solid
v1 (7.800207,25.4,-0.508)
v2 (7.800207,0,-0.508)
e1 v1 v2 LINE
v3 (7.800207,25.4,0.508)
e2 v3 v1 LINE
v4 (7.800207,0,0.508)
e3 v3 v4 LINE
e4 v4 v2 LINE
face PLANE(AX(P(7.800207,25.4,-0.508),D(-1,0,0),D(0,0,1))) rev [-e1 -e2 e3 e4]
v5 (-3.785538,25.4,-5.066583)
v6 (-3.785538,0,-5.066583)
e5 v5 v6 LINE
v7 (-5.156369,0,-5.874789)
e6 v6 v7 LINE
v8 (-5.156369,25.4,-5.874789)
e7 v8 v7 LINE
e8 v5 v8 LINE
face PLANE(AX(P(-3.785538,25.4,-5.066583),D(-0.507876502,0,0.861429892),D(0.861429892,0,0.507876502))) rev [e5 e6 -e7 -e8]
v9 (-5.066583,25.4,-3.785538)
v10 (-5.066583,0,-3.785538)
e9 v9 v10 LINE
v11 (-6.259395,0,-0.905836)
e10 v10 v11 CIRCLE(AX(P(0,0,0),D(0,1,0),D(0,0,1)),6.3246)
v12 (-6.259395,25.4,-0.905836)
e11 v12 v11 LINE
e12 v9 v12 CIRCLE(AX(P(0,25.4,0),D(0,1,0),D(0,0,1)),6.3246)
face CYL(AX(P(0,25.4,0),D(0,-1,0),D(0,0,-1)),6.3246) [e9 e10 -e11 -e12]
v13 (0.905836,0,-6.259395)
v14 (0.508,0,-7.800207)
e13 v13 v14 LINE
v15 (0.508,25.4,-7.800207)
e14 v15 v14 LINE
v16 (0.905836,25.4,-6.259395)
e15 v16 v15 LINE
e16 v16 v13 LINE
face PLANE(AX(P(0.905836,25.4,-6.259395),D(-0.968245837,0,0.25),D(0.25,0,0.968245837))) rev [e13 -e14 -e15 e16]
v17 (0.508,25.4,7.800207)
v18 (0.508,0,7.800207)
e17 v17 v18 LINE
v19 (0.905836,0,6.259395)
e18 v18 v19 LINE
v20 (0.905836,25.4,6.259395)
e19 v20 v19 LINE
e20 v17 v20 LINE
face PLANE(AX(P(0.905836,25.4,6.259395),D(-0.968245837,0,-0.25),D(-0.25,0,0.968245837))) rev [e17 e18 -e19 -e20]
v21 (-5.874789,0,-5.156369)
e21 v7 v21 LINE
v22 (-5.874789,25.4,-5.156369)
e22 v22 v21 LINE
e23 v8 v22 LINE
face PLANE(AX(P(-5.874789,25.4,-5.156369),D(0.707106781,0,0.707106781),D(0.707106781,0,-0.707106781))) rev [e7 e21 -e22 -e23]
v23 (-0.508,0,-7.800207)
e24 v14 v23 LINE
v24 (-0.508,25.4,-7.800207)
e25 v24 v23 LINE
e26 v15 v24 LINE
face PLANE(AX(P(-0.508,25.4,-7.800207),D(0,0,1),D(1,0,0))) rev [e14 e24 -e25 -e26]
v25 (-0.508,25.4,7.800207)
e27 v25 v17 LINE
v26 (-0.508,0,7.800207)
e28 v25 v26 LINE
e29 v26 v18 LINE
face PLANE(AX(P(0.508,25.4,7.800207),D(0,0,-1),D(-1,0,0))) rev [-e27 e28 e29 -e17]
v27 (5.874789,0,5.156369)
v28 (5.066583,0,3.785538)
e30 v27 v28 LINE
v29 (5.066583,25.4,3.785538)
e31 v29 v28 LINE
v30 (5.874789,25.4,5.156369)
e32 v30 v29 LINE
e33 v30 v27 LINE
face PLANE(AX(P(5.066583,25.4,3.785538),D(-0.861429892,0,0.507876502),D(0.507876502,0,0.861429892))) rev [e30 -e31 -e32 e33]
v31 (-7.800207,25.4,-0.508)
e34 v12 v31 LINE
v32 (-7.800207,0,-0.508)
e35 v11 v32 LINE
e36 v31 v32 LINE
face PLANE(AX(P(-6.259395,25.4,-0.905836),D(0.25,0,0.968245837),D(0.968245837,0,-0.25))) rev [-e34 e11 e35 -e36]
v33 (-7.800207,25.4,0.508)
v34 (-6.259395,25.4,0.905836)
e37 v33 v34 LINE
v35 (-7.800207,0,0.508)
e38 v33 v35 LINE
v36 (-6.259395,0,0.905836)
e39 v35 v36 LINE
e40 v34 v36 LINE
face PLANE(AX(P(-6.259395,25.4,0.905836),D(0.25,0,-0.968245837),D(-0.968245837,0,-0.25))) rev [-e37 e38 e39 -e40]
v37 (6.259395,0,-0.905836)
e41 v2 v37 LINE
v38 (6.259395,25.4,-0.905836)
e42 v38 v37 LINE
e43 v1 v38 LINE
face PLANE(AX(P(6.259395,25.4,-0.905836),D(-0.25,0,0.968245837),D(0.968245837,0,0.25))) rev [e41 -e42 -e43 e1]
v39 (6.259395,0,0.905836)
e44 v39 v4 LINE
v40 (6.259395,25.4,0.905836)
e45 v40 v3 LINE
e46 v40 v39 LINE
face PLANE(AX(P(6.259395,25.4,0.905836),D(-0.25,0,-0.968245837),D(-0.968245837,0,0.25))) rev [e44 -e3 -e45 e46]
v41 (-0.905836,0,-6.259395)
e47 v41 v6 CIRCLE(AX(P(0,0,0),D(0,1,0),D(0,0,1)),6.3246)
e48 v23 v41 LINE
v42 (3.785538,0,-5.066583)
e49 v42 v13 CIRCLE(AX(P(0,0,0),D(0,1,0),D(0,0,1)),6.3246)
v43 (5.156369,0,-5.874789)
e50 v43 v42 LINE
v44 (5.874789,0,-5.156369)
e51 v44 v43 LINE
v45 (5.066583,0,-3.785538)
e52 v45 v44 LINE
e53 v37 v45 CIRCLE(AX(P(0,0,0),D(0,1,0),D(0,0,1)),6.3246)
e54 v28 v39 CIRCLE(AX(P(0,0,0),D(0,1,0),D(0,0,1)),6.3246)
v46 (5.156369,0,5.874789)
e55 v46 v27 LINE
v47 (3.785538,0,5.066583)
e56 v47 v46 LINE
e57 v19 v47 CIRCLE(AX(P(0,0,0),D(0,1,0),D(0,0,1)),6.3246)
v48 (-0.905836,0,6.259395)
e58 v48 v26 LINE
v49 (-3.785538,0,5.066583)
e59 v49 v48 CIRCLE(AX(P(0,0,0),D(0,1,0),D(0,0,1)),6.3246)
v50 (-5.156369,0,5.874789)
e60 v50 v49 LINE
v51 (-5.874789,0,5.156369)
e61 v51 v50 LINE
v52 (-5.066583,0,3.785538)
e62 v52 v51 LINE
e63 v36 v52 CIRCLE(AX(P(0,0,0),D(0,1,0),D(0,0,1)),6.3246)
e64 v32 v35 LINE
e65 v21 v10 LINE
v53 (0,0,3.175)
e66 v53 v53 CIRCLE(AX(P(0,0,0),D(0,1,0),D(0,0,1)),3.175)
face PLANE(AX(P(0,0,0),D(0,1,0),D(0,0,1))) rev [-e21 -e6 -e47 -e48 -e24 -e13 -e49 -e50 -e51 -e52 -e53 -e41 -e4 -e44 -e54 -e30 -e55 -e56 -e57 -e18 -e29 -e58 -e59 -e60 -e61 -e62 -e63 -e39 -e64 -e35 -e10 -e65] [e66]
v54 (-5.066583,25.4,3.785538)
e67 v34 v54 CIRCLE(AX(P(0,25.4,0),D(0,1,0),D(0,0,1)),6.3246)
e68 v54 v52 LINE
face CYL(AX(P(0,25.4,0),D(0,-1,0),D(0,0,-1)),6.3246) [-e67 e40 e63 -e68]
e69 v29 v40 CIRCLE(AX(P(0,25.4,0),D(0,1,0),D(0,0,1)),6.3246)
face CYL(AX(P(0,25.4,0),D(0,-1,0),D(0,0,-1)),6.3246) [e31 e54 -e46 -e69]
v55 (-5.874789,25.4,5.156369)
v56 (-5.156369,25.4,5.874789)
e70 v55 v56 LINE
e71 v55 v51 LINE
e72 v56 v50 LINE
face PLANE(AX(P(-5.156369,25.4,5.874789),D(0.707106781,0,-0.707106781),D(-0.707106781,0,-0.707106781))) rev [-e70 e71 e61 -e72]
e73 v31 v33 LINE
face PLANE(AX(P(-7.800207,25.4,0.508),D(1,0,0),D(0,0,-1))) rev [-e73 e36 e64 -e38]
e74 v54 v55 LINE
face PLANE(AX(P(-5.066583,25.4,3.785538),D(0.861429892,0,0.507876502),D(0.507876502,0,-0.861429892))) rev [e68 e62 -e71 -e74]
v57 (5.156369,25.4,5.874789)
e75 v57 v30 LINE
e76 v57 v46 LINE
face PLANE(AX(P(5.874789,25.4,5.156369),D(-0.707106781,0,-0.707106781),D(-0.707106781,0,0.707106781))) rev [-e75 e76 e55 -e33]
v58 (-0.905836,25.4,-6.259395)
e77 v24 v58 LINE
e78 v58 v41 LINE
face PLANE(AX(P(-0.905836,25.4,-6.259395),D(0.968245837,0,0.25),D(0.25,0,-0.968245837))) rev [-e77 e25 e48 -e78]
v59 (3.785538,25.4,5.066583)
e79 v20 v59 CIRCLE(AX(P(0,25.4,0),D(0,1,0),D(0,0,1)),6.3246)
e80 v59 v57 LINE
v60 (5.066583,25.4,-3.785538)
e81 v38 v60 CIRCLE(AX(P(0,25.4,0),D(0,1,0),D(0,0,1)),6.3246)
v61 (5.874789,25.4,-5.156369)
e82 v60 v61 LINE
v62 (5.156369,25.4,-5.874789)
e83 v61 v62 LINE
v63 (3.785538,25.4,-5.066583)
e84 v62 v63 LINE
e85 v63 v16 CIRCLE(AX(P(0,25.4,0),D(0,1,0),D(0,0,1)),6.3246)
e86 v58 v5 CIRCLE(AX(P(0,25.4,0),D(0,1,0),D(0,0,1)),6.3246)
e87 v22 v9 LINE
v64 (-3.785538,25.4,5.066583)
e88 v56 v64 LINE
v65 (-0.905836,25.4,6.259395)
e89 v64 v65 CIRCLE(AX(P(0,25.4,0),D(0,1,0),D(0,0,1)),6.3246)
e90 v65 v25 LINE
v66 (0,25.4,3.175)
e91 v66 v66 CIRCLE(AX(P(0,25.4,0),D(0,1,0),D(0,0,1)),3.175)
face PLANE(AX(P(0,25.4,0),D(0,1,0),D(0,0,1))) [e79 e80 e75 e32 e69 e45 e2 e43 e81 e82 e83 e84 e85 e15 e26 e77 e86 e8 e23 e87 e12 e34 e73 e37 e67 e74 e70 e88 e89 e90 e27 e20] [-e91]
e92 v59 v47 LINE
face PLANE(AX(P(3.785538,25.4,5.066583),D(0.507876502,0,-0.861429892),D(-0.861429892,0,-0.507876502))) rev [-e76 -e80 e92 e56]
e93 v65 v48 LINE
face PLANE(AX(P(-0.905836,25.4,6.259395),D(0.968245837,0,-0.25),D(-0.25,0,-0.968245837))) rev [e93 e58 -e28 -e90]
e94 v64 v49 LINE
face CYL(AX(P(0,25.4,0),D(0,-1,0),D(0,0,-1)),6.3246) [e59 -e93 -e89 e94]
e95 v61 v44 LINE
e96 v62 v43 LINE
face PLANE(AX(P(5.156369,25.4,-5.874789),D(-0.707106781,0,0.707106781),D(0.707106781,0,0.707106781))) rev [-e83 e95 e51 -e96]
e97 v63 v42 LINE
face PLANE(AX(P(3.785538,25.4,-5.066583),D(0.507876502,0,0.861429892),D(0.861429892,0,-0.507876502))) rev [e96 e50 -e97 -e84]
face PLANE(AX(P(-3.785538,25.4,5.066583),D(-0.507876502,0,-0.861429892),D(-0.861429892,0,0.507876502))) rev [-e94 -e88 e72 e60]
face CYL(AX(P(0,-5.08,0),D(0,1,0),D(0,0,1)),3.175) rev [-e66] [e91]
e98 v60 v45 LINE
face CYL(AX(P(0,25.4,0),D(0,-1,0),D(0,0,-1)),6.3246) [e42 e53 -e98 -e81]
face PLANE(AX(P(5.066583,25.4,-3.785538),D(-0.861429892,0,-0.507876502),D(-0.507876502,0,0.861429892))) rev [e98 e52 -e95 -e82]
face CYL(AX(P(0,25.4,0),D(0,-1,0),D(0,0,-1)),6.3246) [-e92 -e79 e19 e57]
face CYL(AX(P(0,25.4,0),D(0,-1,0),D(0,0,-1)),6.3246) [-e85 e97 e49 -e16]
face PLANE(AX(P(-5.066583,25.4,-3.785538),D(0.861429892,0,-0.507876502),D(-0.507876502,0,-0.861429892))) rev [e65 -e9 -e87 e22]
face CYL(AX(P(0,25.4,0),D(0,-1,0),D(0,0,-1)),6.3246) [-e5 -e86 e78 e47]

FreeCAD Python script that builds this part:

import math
import FreeCAD as App
import Part
import Sketcher
Q = App.Units.Quantity

doc = App.newDocument("Part")
params = doc.addObject("Spreadsheet::Sheet", "Params")
for row, (alias, value) in enumerate([
    ("sketch1_radius", "0.249 in"),
    ("sketch1_width", "0.04 in"),
    ("sketch1_length", "0.04 in"),
    ("pad1_length", "1 in"),
    ("sketch2_diameter", "0.25 in"),
    ("pocket1_length", "1.2 in"),
], start=1):
    params.set(f"A{row}", alias)
    params.set(f"B{row}", "=" + value)
    params.setAlias(f"B{row}", alias)

body = doc.addObject("PartDesign::Body", "Body")

# Sketch on XZ plane
sketch1 = body.newObject("Sketcher::SketchObject", "Sketch")
sketch1.AttachmentSupport = (doc.getObject("XZ_Plane"), [""])
sketch1.MapMode = "FlatFace"
sketch1.addGeometry([
    Part.LineSegment(App.Vector(-0.5, -7.8, 0), App.Vector(-0.9, -6.3, 0)),  # 0
    Part.ArcOfCircle(Part.Circle(App.Vector(0, 0, 0), App.Vector(0, 0, 1), 6.3), math.radians(-127), math.radians(-98)),  # 1
    Part.LineSegment(App.Vector(-3.8, -5.1, 0), App.Vector(-5.2, -5.9, 0)),  # 2
    Part.LineSegment(App.Vector(-5.2, -5.9, 0), App.Vector(-5.9, -5.2, 0)),  # 3
    Part.LineSegment(App.Vector(-5.9, -5.2, 0), App.Vector(-5.1, -3.8, 0)),  # 4
    Part.ArcOfCircle(Part.Circle(App.Vector(0, 0, 0), App.Vector(0, 0, 1), 6.3), math.radians(-172), math.radians(-143)),  # 5
    Part.LineSegment(App.Vector(-6.3, -0.9, 0), App.Vector(-7.8, -0.5, 0)),  # 6
    Part.LineSegment(App.Vector(-7.8, -0.5, 0), App.Vector(-7.8, 0.5, 0)),  # 7
    Part.LineSegment(App.Vector(-7.8, 0.5, 0), App.Vector(-6.3, 0.9, 0)),  # 8
    Part.ArcOfCircle(Part.Circle(App.Vector(0, 0, 0), App.Vector(0, 0, 1), 6.3), math.radians(143), math.radians(172)),  # 9
    Part.LineSegment(App.Vector(-5.1, 3.8, 0), App.Vector(-5.9, 5.2, 0)),  # 10
    Part.LineSegment(App.Vector(-5.9, 5.2, 0), App.Vector(-5.2, 5.9, 0)),  # 11
    Part.LineSegment(App.Vector(-5.2, 5.9, 0), App.Vector(-3.8, 5.1, 0)),  # 12
    Part.ArcOfCircle(Part.Circle(App.Vector(0, 0, 0), App.Vector(0, 0, 1), 6.3), math.radians(98), math.radians(127)),  # 13
    Part.LineSegment(App.Vector(-0.9, 6.3, 0), App.Vector(-0.5, 7.8, 0)),  # 14
    Part.LineSegment(App.Vector(-0.5, 7.8, 0), App.Vector(0.5, 7.8, 0)),  # 15
    Part.LineSegment(App.Vector(0.5, 7.8, 0), App.Vector(0.9, 6.3, 0)),  # 16
    Part.ArcOfCircle(Part.Circle(App.Vector(0, 0, 0), App.Vector(0, 0, 1), 6.3), math.radians(53), math.radians(82)),  # 17
    Part.LineSegment(App.Vector(3.8, 5.1, 0), App.Vector(5.2, 5.9, 0)),  # 18
    Part.LineSegment(App.Vector(5.2, 5.9, 0), App.Vector(5.9, 5.2, 0)),  # 19
    Part.LineSegment(App.Vector(5.9, 5.2, 0), App.Vector(5.1, 3.8, 0)),  # 20
    Part.ArcOfCircle(Part.Circle(App.Vector(0, 0, 0), App.Vector(0, 0, 1), 6.3), math.radians(8), math.radians(37)),  # 21
    Part.LineSegment(App.Vector(6.3, 0.9, 0), App.Vector(7.8, 0.5, 0)),  # 22
    Part.LineSegment(App.Vector(7.8, 0.5, 0), App.Vector(7.8, -0.5, 0)),  # 23
    Part.LineSegment(App.Vector(7.8, -0.5, 0), App.Vector(6.3, -0.9, 0)),  # 24
    Part.ArcOfCircle(Part.Circle(App.Vector(0, 0, 0), App.Vector(0, 0, 1), 6.3), math.radians(-37), math.radians(-8)),  # 25
    Part.LineSegment(App.Vector(5.1, -3.8, 0), App.Vector(5.9, -5.2, 0)),  # 26
    Part.LineSegment(App.Vector(5.9, -5.2, 0), App.Vector(5.2, -5.9, 0)),  # 27
    Part.LineSegment(App.Vector(5.2, -5.9, 0), App.Vector(3.8, -5.1, 0)),  # 28
    Part.ArcOfCircle(Part.Circle(App.Vector(0, 0, 0), App.Vector(0, 0, 1), 6.3), math.radians(-82), math.radians(-53)),  # 29
    Part.LineSegment(App.Vector(0.9, -6.3, 0), App.Vector(0.5, -7.8, 0)),  # 30
    Part.LineSegment(App.Vector(0.5, -7.8, 0), App.Vector(-0.5, -7.8, 0)),  # 31
], False)
sketch1.addConstraint([
    Sketcher.Constraint("Coincident", 0, 2, 1, 2),
    Sketcher.Constraint("Coincident", 1, 1, 2, 1),
    Sketcher.Constraint("Coincident", 2, 2, 3, 1),
    Sketcher.Constraint("Coincident", 3, 2, 4, 1),
    Sketcher.Constraint("Coincident", 4, 2, 5, 2),
    Sketcher.Constraint("Coincident", 5, 1, 6, 1),
    Sketcher.Constraint("Coincident", 6, 2, 7, 1),
    Sketcher.Constraint("Coincident", 7, 2, 8, 1),
    Sketcher.Constraint("Coincident", 8, 2, 9, 2),
    Sketcher.Constraint("Coincident", 9, 1, 10, 1),
    Sketcher.Constraint("Coincident", 10, 2, 11, 1),
    Sketcher.Constraint("Coincident", 11, 2, 12, 1),
    Sketcher.Constraint("Coincident", 12, 2, 13, 2),
    Sketcher.Constraint("Coincident", 13, 1, 14, 1),
    Sketcher.Constraint("Coincident", 14, 2, 15, 1),
    Sketcher.Constraint("Coincident", 15, 2, 16, 1),
    Sketcher.Constraint("Coincident", 16, 2, 17, 2),
    Sketcher.Constraint("Coincident", 17, 1, 18, 1),
    Sketcher.Constraint("Coincident", 18, 2, 19, 1),
    Sketcher.Constraint("Coincident", 19, 2, 20, 1),
    Sketcher.Constraint("Coincident", 20, 2, 21, 2),
    Sketcher.Constraint("Coincident", 21, 1, 22, 1),
    Sketcher.Constraint("Coincident", 22, 2, 23, 1),
    Sketcher.Constraint("Coincident", 23, 2, 24, 1),
    Sketcher.Constraint("Coincident", 24, 2, 25, 2),
    Sketcher.Constraint("Coincident", 25, 1, 26, 1),
    Sketcher.Constraint("Coincident", 26, 2, 27, 1),
    Sketcher.Constraint("Coincident", 27, 2, 28, 1),
    Sketcher.Constraint("Coincident", 28, 2, 29, 2),
    Sketcher.Constraint("Coincident", 29, 1, 30, 1),
    Sketcher.Constraint("Coincident", 30, 2, 31, 1),
    Sketcher.Constraint("Coincident", 31, 2, 0, 1),
    Sketcher.Constraint("Vertical", 7),
    Sketcher.Constraint("Horizontal", 15),
    Sketcher.Constraint("Vertical", 23),
    Sketcher.Constraint("Horizontal", 31),
    Sketcher.Constraint("Coincident", 1, 3, -1, 1),
    Sketcher.Constraint("Coincident", 5, 3, -1, 1),
    Sketcher.Constraint("Coincident", 9, 3, -1, 1),
    Sketcher.Constraint("Coincident", 13, 3, -1, 1),
    Sketcher.Constraint("Coincident", 17, 3, -1, 1),
    Sketcher.Constraint("Coincident", 21, 3, -1, 1),
    Sketcher.Constraint("Coincident", 25, 3, -1, 1),
    Sketcher.Constraint("Coincident", 29, 3, -1, 1),
    Sketcher.Constraint("Equal", 1, 5),
    Sketcher.Constraint("Equal", 5, 9),
    Sketcher.Constraint("Equal", 9, 13),
    Sketcher.Constraint("Equal", 13, 17),
    Sketcher.Constraint("Equal", 17, 21),
    Sketcher.Constraint("Equal", 21, 25),
    Sketcher.Constraint("Equal", 25, 29),
    Sketcher.Constraint("Symmetric", 2, 2, 18, 2, -1, 1),
    Sketcher.Constraint("Symmetric", 3, 2, 19, 2, -1, 1),
    Sketcher.Constraint("Symmetric", 6, 2, 22, 2, -1, 1),
    Sketcher.Constraint("Symmetric", 10, 2, 26, 2, -1, 1),
    Sketcher.Constraint("Symmetric", 11, 2, 27, 2, -1, 1),
    Sketcher.Constraint("Symmetric", 14, 2, 30, 2, -1, 1),
    Sketcher.Constraint("Symmetric", 11, 2, 18, 2, -2),
    Sketcher.Constraint("Symmetric", 10, 2, 19, 2, -2),
    Sketcher.Constraint("Perpendicular", 0, 8),
    Sketcher.Constraint("Perpendicular", 2, 10),
    Sketcher.Constraint("Perpendicular", 3, 11),
    Sketcher.Constraint("Perpendicular", 4, 12),
    Sketcher.Constraint("Perpendicular", 6, 14),
    Sketcher.Constraint("Perpendicular", 8, 16),
    Sketcher.Constraint("Perpendicular", 10, 18),
    Sketcher.Constraint("Perpendicular", 12, 20),
    Sketcher.Constraint("Perpendicular", 14, 22),
    Sketcher.Constraint("Perpendicular", 16, 24),
    Sketcher.Constraint("Perpendicular", 18, 26),
    Sketcher.Constraint("Perpendicular", 20, 28),
    Sketcher.Constraint("Perpendicular", 22, 30),
    Sketcher.Constraint("Horizontal", 13, 1, 16, 2),
    Sketcher.Constraint("Horizontal", 12, 2, 17, 1),
    Sketcher.Constraint("Horizontal", 8, 2, 21, 1),
    Sketcher.Constraint("Horizontal", 7, 2, 22, 2),
    Sketcher.Constraint("Horizontal", 6, 2, 23, 2),
    Sketcher.Constraint("Horizontal", 0, 2, 29, 1),
    Sketcher.Constraint("Equal", 31, 7),
    Sketcher.Constraint("Equal", 0, 2),
    Sketcher.Constraint("Equal", 2, 4),
    Sketcher.Constraint("Equal", 4, 6),
    Sketcher.Constraint("Radius", 1, Q("0.249 in")),
    Sketcher.Constraint("DistanceX", 15, 1, 15, 2, Q("0.04 in")),
    Sketcher.Constraint("Distance", 3, Q("0.04 in")),
    Sketcher.Constraint("DistanceX", 1, 1, -1, 1, Q("3.785538 mm")),
    Sketcher.Constraint("DistanceX", 2, 2, -1, 1, Q("5.156369 mm")),
    Sketcher.Constraint("DistanceY", 0, 2, 1, 1, Q("1.192812 mm")),
])
sketch1.setExpression("Constraints[82]", "Params.sketch1_radius")
sketch1.setExpression("Constraints[83]", "Params.sketch1_width")
sketch1.setExpression("Constraints[84]", "Params.sketch1_length")
pad1 = body.newObject("PartDesign::Pad", "Pad")
pad1.Profile = sketch1
pad1.setExpression("Length", "Params.pad1_length")
pad1.Reversed = True

# Sketch on XZ plane
sketch2 = body.newObject("Sketcher::SketchObject", "Sketch001")
sketch2.AttachmentSupport = (doc.getObject("XZ_Plane"), [""])
sketch2.MapMode = "FlatFace"
sketch2.AttachmentOffset = App.Placement(App.Vector(0, 0, -1 * 25.4), App.Rotation())
sketch2.addGeometry(Part.Circle(App.Vector(0, 0, 0), App.Vector(0, 0, 1), 3.2), False)
sketch2.addConstraint([
    Sketcher.Constraint("Coincident", 0, 3, -1, 1),
    Sketcher.Constraint("Diameter", 0, Q("0.25 in")),
])
sketch2.setExpression("Constraints[1]", "Params.sketch2_diameter")
pocket1 = body.newObject("PartDesign::Pocket", "Pocket")
pocket1.Profile = sketch2
pocket1.setExpression("Length", "Params.pocket1_length")
pocket1.Reversed = True

doc.recompute()
